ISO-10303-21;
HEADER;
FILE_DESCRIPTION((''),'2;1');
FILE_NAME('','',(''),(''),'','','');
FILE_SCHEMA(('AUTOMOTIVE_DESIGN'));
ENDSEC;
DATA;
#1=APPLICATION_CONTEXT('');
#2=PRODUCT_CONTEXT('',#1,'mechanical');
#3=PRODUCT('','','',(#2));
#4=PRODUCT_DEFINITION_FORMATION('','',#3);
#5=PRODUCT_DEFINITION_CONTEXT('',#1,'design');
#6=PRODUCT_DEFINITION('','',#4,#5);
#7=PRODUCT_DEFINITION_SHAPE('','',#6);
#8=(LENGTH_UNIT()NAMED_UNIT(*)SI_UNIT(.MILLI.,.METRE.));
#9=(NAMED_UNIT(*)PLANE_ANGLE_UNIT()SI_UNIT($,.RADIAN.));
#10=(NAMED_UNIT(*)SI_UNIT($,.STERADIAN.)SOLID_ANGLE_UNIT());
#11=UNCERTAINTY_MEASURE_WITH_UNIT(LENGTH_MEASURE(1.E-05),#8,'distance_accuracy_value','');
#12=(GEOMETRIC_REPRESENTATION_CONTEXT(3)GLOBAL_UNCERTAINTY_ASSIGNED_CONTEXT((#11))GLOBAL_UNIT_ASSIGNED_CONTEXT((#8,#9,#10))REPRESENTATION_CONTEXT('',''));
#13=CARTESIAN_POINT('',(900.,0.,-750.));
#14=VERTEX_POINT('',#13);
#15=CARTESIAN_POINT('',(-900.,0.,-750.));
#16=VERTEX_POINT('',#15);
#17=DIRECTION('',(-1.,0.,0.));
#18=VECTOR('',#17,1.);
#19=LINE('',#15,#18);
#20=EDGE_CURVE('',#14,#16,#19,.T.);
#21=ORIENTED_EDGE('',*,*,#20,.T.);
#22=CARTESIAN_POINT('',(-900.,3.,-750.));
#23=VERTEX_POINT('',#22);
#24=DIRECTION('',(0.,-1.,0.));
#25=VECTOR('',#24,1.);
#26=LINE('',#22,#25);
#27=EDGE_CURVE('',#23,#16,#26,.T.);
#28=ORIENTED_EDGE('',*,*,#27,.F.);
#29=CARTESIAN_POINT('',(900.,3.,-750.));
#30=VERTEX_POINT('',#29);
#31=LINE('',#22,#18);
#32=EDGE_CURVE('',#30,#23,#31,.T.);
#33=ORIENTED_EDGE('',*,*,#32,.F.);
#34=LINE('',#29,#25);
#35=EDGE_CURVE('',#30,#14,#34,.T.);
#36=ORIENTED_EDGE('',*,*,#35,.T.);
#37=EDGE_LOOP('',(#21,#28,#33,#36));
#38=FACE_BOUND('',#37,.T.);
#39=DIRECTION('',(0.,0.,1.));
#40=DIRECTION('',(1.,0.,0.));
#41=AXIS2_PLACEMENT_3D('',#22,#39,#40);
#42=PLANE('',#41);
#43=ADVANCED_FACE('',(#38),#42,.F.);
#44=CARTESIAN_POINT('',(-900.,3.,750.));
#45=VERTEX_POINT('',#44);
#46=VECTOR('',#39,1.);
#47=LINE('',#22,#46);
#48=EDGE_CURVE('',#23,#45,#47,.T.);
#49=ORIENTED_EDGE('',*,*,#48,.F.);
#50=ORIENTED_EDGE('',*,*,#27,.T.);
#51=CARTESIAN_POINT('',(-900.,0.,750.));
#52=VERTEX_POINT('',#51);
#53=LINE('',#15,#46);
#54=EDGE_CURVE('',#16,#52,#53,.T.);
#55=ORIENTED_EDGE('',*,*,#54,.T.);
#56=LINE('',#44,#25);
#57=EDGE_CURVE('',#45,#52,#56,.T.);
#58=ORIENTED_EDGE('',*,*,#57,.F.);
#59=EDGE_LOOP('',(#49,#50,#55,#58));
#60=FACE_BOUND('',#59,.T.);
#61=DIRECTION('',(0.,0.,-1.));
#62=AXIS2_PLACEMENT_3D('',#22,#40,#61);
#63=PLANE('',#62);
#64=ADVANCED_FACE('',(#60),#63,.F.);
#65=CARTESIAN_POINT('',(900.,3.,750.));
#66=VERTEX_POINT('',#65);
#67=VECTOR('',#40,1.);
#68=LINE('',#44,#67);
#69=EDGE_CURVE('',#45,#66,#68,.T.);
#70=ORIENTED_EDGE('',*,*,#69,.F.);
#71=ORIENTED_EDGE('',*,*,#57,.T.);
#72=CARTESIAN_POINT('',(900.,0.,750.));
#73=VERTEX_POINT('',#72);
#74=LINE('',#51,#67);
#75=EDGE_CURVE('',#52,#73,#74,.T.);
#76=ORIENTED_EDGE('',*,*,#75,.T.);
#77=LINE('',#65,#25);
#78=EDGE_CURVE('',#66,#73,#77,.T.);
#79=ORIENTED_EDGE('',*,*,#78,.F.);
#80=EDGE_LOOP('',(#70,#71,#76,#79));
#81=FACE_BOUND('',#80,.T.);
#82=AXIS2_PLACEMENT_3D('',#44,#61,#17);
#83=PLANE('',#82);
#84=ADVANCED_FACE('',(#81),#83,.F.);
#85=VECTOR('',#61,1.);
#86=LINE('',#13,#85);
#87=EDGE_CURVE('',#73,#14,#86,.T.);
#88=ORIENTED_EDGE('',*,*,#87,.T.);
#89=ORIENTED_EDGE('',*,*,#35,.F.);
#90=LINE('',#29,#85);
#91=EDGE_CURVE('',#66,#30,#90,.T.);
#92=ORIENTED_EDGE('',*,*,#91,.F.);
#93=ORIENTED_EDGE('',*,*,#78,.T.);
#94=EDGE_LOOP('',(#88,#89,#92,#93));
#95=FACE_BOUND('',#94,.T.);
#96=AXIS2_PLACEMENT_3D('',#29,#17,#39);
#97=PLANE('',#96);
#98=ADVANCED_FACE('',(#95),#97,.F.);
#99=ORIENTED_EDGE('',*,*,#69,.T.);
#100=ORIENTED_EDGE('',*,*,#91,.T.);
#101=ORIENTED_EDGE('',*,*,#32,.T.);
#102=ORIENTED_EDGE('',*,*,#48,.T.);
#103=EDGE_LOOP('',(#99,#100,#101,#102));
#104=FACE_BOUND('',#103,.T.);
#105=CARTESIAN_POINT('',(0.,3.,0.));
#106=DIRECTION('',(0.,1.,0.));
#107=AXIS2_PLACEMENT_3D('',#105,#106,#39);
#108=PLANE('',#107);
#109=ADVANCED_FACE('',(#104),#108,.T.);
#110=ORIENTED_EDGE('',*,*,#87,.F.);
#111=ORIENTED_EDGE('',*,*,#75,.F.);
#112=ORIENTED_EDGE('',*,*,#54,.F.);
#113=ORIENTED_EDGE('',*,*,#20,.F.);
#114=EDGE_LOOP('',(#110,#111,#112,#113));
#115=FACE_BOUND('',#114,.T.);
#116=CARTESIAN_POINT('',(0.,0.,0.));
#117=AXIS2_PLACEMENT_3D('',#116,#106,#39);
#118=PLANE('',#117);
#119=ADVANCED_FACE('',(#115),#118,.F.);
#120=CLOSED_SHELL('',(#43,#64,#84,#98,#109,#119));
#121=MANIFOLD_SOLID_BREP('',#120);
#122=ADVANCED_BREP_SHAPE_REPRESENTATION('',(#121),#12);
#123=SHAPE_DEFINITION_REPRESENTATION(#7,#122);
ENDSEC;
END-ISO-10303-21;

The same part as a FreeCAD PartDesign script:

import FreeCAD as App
import Part
import Sketcher
Q = App.Units.Quantity

doc = App.newDocument("Part")
body = doc.addObject("PartDesign::Body", "Body")

# Sketch on XZ plane
sketch1 = body.newObject("Sketcher::SketchObject", "Sketch")
sketch1.AttachmentSupport = (doc.getObject("XZ_Plane"), [""])
sketch1.MapMode = "FlatFace"
sketch1.addGeometry([
    Part.LineSegment(App.Vector(-900, -750, 0), App.Vector(-900, 750, 0)),
    Part.LineSegment(App.Vector(-900, 750, 0), App.Vector(900, 750, 0)),
    Part.LineSegment(App.Vector(900, 750, 0), App.Vector(900, -750, 0)),
    Part.LineSegment(App.Vector(900, -750, 0), App.Vector(-900, -750, 0)),
], False)
sketch1.addConstraint([
    Sketcher.Constraint("Coincident", 0, 2, 1, 1),
    Sketcher.Constraint("Coincident", 1, 2, 2, 1),
    Sketcher.Constraint("Coincident", 2, 2, 3, 1),
    Sketcher.Constraint("Coincident", 3, 2, 0, 1),
    Sketcher.Constraint("Vertical", 0),
    Sketcher.Constraint("Horizontal", 1),
    Sketcher.Constraint("Vertical", 2),
    Sketcher.Constraint("Horizontal", 3),
    Sketcher.Constraint("Symmetric", 0, 2, 2, 2, -1, 1),
    Sketcher.Constraint("DistanceX", 1, 1, 1, 2, Q("1800 mm")),
    Sketcher.Constraint("DistanceY", 0, 1, 0, 2, Q("1500 mm")),
])
pad1 = body.newObject("PartDesign::Pad", "Pad")
pad1.Profile = sketch1
pad1.Length = 3
pad1.Reversed = True

doc.recompute()
